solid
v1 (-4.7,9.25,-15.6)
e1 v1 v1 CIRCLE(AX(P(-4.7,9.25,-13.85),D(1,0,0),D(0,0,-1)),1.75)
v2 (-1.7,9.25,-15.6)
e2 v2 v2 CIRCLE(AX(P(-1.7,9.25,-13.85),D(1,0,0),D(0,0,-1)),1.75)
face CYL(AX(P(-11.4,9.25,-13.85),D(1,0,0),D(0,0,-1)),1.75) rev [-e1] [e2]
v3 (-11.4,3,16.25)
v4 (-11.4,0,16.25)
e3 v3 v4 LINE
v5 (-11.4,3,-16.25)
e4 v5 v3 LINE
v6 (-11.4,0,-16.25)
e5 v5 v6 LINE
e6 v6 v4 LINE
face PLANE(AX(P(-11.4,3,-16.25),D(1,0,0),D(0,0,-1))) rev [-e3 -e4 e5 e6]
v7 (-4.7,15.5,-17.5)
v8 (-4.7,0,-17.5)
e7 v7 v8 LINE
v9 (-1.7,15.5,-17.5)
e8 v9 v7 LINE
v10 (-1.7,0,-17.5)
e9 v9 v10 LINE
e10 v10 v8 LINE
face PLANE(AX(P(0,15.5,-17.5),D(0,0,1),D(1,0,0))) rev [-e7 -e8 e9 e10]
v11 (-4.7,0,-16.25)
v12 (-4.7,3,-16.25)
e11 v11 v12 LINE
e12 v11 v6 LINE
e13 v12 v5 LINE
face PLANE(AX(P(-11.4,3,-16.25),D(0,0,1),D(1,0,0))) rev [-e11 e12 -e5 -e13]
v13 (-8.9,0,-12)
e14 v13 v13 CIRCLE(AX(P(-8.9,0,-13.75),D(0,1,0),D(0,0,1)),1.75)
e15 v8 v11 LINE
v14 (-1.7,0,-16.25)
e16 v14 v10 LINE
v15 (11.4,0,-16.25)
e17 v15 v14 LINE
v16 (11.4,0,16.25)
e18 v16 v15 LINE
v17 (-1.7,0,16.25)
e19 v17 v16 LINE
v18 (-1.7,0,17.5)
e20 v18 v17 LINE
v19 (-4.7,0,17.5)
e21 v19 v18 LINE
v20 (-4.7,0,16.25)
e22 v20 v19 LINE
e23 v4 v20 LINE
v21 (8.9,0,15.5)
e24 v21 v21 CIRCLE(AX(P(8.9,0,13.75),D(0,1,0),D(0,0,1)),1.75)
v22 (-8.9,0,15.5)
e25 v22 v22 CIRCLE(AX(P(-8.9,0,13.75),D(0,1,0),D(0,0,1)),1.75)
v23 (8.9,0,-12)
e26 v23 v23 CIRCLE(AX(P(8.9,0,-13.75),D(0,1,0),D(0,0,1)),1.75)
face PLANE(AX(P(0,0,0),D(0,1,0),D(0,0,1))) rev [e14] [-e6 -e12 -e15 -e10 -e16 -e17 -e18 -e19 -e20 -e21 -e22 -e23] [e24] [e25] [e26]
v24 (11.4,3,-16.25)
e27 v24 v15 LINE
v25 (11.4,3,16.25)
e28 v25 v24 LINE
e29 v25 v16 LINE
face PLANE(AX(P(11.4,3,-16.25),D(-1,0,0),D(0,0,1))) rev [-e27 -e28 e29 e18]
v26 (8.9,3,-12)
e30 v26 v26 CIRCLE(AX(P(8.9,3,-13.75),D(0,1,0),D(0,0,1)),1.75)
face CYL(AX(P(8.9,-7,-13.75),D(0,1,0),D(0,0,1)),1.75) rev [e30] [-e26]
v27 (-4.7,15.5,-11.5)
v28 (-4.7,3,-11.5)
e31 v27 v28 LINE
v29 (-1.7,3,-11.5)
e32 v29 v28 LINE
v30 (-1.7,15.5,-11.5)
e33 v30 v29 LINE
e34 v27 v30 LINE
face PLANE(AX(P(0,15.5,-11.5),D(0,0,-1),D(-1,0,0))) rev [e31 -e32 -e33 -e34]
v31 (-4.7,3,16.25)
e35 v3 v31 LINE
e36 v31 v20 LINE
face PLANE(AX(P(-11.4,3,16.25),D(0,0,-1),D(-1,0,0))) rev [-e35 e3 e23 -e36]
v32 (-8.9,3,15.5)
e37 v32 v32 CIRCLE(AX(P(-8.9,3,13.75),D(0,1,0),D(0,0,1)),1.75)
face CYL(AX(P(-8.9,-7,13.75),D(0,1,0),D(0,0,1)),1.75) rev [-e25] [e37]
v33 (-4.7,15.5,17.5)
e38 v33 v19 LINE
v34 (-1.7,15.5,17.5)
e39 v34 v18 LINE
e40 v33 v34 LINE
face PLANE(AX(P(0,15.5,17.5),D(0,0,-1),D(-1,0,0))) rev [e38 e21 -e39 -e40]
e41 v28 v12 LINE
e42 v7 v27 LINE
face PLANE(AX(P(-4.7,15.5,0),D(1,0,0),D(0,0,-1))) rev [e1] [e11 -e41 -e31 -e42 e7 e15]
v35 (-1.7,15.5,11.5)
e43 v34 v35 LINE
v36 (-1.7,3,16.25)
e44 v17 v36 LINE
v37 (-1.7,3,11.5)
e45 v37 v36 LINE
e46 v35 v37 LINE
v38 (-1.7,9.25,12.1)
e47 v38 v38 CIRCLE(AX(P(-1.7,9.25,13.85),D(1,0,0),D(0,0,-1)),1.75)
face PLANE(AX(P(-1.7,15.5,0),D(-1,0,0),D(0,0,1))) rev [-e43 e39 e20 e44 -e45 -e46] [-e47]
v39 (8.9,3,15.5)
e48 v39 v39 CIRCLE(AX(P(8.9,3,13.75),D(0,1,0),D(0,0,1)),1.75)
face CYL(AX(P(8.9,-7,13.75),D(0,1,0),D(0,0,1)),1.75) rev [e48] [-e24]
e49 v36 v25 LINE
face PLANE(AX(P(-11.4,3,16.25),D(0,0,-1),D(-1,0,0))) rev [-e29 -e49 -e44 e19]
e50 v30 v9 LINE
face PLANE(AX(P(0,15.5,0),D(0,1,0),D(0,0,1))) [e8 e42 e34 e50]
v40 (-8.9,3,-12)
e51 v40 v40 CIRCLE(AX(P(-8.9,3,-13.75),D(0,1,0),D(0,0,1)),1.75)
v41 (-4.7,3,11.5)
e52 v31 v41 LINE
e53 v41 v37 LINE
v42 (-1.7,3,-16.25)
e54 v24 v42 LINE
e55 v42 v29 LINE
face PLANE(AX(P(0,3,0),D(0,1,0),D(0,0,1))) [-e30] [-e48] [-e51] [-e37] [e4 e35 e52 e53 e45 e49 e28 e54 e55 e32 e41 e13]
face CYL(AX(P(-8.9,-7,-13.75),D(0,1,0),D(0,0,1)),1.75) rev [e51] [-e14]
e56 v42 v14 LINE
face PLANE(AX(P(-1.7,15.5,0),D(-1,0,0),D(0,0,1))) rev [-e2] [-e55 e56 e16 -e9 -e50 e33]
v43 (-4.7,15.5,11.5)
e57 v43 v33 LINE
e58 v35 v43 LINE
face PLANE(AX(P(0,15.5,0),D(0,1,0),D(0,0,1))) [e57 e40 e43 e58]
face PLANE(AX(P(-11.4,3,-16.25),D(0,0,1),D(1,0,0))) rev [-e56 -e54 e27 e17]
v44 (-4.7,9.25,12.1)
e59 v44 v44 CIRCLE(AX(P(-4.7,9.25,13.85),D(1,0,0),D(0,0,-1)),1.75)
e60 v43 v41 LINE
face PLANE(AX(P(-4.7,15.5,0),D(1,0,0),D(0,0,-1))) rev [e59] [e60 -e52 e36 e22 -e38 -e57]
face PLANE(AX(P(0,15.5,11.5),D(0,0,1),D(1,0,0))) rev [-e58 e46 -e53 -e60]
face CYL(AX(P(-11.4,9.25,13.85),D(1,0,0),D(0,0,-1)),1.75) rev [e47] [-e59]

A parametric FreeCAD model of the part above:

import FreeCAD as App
import Part
import Sketcher
from FreeCAD import Vector


def add_polygon(sketch, points):
    """Adds a closed chain of lines whose ends are joined by coincident constraints."""
    first, n = sketch.GeometryCount, len(points)
    for a, b in zip(points, points[1:] + points[:1]):
        sketch.addGeometry(Part.LineSegment(App.Vector(*a, 0), App.Vector(*b, 0)), False)
    for i in range(n):
        sketch.addConstraint(Sketcher.Constraint("Coincident", first + i, 2, first + (i + 1) % n, 1))

doc = App.newDocument("Part")
params = doc.addObject("Spreadsheet::Sheet", "Params")
for row, (alias, value) in enumerate([
    ("sketch1_width", "22.8 mm"),
    ("sketch1_height", "32.5 mm"),
    ("pad1_length", "3 mm"),
    ("sketch2_diameter", "3.5 mm"),
    ("pocket1_length", "10 mm"),
    ("sketch3_width", "3 mm"),
    ("sketch3_height", "6 mm"),
    ("pad2_length", "15.5 mm"),
    ("sketch4_diameter", "3.5 mm"),
], start=1):
    params.set(f"A{row}", alias)
    params.set(f"B{row}", "=" + value)
    params.setAlias(f"B{row}", alias)

body = doc.addObject("PartDesign::Body", "Body")

# Sketch on XZ plane
sketch1 = body.newObject("Sketcher::SketchObject", "Sketch")
sketch1.AttachmentSupport = (doc.getObject("XZ_Plane"), [""])
sketch1.MapMode = "FlatFace"
add_polygon(sketch1, [(-11, -16), (-11, 16), (11, 16), (11, -16)])  # lines 0-3
sketch1.addConstraint(Sketcher.Constraint("Vertical", 0))
sketch1.addConstraint(Sketcher.Constraint("Horizontal", 1))
sketch1.addConstraint(Sketcher.Constraint("Vertical", 2))
sketch1.addConstraint(Sketcher.Constraint("Horizontal", 3))
sketch1.addConstraint(Sketcher.Constraint("Symmetric", 0, 2, 2, 2, -1, 1))
sketch1.addConstraint(Sketcher.Constraint("DistanceX", 1, 1, 1, 2, 22.8))
sketch1.addConstraint(Sketcher.Constraint("DistanceY", 0, 1, 0, 2, 32.5))
sketch1.setExpression("Constraints[9]", "Params.sketch1_width")
sketch1.setExpression("Constraints[10]", "Params.sketch1_height")
pad1 = body.newObject("PartDesign::Pad", "Pad")
pad1.Profile = sketch1
pad1.setExpression("Length", "Params.pad1_length")
pad1.Reversed = True

# Sketch on XZ plane
sketch2 = body.newObject("Sketcher::SketchObject", "Sketch001")
sketch2.AttachmentSupport = (doc.getObject("XZ_Plane"), [""])
sketch2.MapMode = "FlatFace"
sketch2.AttachmentOffset = App.Placement(Vector(0, 0, -3), App.Rotation())
sketch2.addGeometry(Part.Circle(Vector(-8.9, -13.8, 0), Vector(0, 0, 1), 1.8), False)
sketch2.addGeometry(Part.Circle(Vector(8.9, -13.8, 0), Vector(0, 0, 1), 1.8), False)
sketch2.addGeometry(Part.Circle(Vector(-8.9, 13.8, 0), Vector(0, 0, 1), 1.8), False)
sketch2.addGeometry(Part.Circle(Vector(8.9, 13.8, 0), Vector(0, 0, 1), 1.8), False)
sketch2.addConstraint(Sketcher.Constraint("Equal", 0, 1))
sketch2.addConstraint(Sketcher.Constraint("Equal", 1, 2))
sketch2.addConstraint(Sketcher.Constraint("Equal", 2, 3))
sketch2.addConstraint(Sketcher.Constraint("Symmetric", 1, 3, 2, 3, -1, 1))
sketch2.addConstraint(Sketcher.Constraint("Symmetric", 0, 3, 3, 3, -1, 1))
sketch2.addConstraint(Sketcher.Constraint("Symmetric", 0, 3, 1, 3, -2))
sketch2.addConstraint(Sketcher.Constraint("Diameter", 0, 3.5))
sketch2.addConstraint(Sketcher.Constraint("DistanceX", 0, 3, -1, 1, 8.9))
sketch2.addConstraint(Sketcher.Constraint("DistanceY", 0, 3, 2, 3, 27.5))
sketch2.setExpression("Constraints[6]", "Params.sketch2_diameter")
pocket1 = body.newObject("PartDesign::Pocket", "Pocket")
pocket1.Profile = sketch2
pocket1.setExpression("Length", "Params.pocket1_length")
pocket1.Reversed = True

# Sketch on XZ plane
sketch3 = body.newObject("Sketcher::SketchObject", "Sketch002")
sketch3.AttachmentSupport = (doc.getObject("XZ_Plane"), [""])
sketch3.MapMode = "FlatFace"
add_polygon(sketch3, [(-4.7, 11.5), (-4.7, 17.5), (-1.7, 17.5), (-1.7, 11.5)])  # lines 0-3
add_polygon(sketch3, [(-4.7, -17.5), (-4.7, -11.5), (-1.7, -11.5), (-1.7, -17.5)])  # lines 4-7
sketch3.addConstraint(Sketcher.Constraint("Vertical", 0))
sketch3.addConstraint(Sketcher.Constraint("Horizontal", 1))
sketch3.addConstraint(Sketcher.Constraint("Vertical", 2))
sketch3.addConstraint(Sketcher.Constraint("Horizontal", 3))
sketch3.addConstraint(Sketcher.Constraint("Vertical", 4))
sketch3.addConstraint(Sketcher.Constraint("Horizontal", 5))
sketch3.addConstraint(Sketcher.Constraint("Vertical", 6))
sketch3.addConstraint(Sketcher.Constraint("Horizontal", 7))
sketch3.addConstraint(Sketcher.Constraint("Symmetric", 3, 2, 4, 2, -1))
sketch3.addConstraint(Sketcher.Constraint("Symmetric", 1, 2, 6, 2, -1))
sketch3.addConstraint(Sketcher.Constraint("DistanceX", 1, 1, 1, 2, 3.0))
sketch3.addConstraint(Sketcher.Constraint("DistanceY", 0, 1, 0, 2, 6.0))
sketch3.addConstraint(Sketcher.Constraint("DistanceY", 4, 2, 3, 2, 23.0))
sketch3.addConstraint(Sketcher.Constraint("DistanceX", 0, 2, -1, 1, 4.7))
sketch3.setExpression("Constraints[18]", "Params.sketch3_width")
sketch3.setExpression("Constraints[19]", "Params.sketch3_height")
pad2 = body.newObject("PartDesign::Pad", "Pad001")
pad2.Profile = sketch3
pad2.setExpression("Length", "Params.pad2_length")
pad2.Reversed = True

# Sketch on YZ plane
sketch4 = body.newObject("Sketcher::SketchObject", "Sketch003")
sketch4.AttachmentSupport = (doc.getObject("YZ_Plane"), [""])
sketch4.MapMode = "FlatFace"
sketch4.AttachmentOffset = App.Placement(Vector(0, 0, -1.7), App.Rotation())
sketch4.addGeometry(Part.Circle(Vector(9.2, 13.8, 0), Vector(0, 0, 1), 1.8), False)
sketch4.addGeometry(Part.Circle(Vector(9.2, -13.8, 0), Vector(0, 0, 1), 1.8), False)
sketch4.addConstraint(Sketcher.Constraint("Equal", 0, 1))
sketch4.addConstraint(Sketcher.Constraint("Symmetric", 0, 3, 1, 3, -1))
sketch4.addConstraint(Sketcher.Constraint("Diameter", 0, 3.5))
sketch4.addConstraint(Sketcher.Constraint("DistanceY", 1, 3, 0, 3, 27.7))
sketch4.addConstraint(Sketcher.Constraint("DistanceX", -1, 1, 0, 3, 9.25))
sketch4.setExpression("Constraints[2]", "Params.sketch4_diameter")
pocket2 = body.newObject("PartDesign::Pocket", "Pocket001")
pocket2.Profile = sketch4
pocket2.Type = "ThroughAll"

doc.recompute()
